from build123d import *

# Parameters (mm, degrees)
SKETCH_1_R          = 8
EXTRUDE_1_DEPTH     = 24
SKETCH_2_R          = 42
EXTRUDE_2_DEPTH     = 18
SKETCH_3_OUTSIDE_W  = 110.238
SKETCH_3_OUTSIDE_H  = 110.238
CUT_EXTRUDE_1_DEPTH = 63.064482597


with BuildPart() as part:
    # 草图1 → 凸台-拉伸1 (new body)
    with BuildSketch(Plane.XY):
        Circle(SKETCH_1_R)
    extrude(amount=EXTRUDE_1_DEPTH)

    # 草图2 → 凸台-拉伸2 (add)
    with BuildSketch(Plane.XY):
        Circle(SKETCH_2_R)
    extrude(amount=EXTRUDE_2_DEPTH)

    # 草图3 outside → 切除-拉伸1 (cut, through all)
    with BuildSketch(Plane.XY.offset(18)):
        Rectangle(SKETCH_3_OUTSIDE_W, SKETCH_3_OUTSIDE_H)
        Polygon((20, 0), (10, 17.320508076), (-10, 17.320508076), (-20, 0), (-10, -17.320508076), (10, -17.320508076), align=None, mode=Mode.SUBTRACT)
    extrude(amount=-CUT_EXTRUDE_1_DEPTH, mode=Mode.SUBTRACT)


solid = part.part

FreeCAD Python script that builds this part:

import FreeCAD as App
import Part
import Sketcher
Q = App.Units.Quantity


def add_polygon(sketch, points):
    """Adds a closed chain of lines whose ends are joined by coincident constraints."""
    first, n = sketch.GeometryCount, len(points)
    for a, b in zip(points, points[1:] + points[:1]):
        sketch.addGeometry(Part.LineSegment(App.Vector(*a, 0), App.Vector(*b, 0)), False)
    for i in range(n):
        sketch.addConstraint(Sketcher.Constraint("Coincident", first + i, 2, first + (i + 1) % n, 1))

doc = App.newDocument("Part")
body = doc.addObject("PartDesign::Body", "Body")

# Sketch on XY plane
sketch1 = body.newObject("Sketcher::SketchObject", "Sketch")
sketch1.AttachmentSupport = (doc.getObject("XY_Plane"), [""])
sketch1.MapMode = "FlatFace"
sketch1.addGeometry(Part.Circle(App.Vector(0, 0, 0), App.Vector(0, 0, 1), 8), False)
sketch1.addConstraint(Sketcher.Constraint("Coincident", 0, 3, -1, 1))
sketch1.addConstraint(Sketcher.Constraint("Diameter", 0, 16.0))
pad1 = body.newObject("PartDesign::Pad", "Pad")
pad1.Profile = sketch1
pad1.Length = 24

# Sketch on XY plane
sketch2 = body.newObject("Sketcher::SketchObject", "Sketch001")
sketch2.AttachmentSupport = (doc.getObject("XY_Plane"), [""])
sketch2.MapMode = "FlatFace"
sketch2.addGeometry(Part.Circle(App.Vector(0, 0, 0), App.Vector(0, 0, 1), 42), False)
sketch2.addConstraint(Sketcher.Constraint("Coincident", 0, 3, -1, 1))
sketch2.addConstraint(Sketcher.Constraint("Diameter", 0, 84.0))
pad2 = body.newObject("PartDesign::Pad", "Pad001")
pad2.Profile = sketch2
pad2.Length = 18

# Sketch on XY plane
sketch3 = body.newObject("Sketcher::SketchObject", "Sketch002")
sketch3.AttachmentSupport = (doc.getObject("XY_Plane"), [""])
sketch3.MapMode = "FlatFace"
sketch3.AttachmentOffset = App.Placement(App.Vector(0, 0, 18), App.Rotation())
add_polygon(sketch3, [(-55, 55), (-55, -55), (55, -55), (55, 55)])  # lines 0-3
add_polygon(sketch3, [(10, 17), (20, 0), (10, -17), (-10, -17), (-20, 0), (-10, 17)])  # lines 4-9
sketch3.addConstraint(Sketcher.Constraint("Vertical", 0))
sketch3.addConstraint(Sketcher.Constraint("Horizontal", 1))
sketch3.addConstraint(Sketcher.Constraint("Vertical", 2))
sketch3.addConstraint(Sketcher.Constraint("Horizontal", 3))
sketch3.addConstraint(Sketcher.Constraint("Horizontal", 6))
sketch3.addConstraint(Sketcher.Constraint("Horizontal", 9))
sketch3.addConstraint(Sketcher.Constraint("Symmetric", 0, 2, 2, 2, -1, 1))
sketch3.addConstraint(Sketcher.Constraint("Symmetric", 4, 2, 7, 2, -1, 1))
sketch3.addConstraint(Sketcher.Constraint("Symmetric", 5, 2, 8, 2, -1, 1))
sketch3.addConstraint(Sketcher.Constraint("PointOnObject", 4, 2, -1))
sketch3.addConstraint(Sketcher.Constraint("Parallel", 4, 7))
sketch3.addConstraint(Sketcher.Constraint("Vertical", 6, 2, 8, 2))
sketch3.addConstraint(Sketcher.Constraint("Equal", 3, 0))
sketch3.addConstraint(Sketcher.Constraint("DistanceX", 6, 2, 6, 1, 20.0))
sketch3.addConstraint(Sketcher.Constraint("Angle", 4, Q("-60 deg")))
sketch3.addConstraint(Sketcher.Constraint("Distance", 4, 20.0))
sketch3.addConstraint(Sketcher.Constraint("DistanceX", 1, 1, 1, 2, 110.238))
pocket1 = body.newObject("PartDesign::Pocket", "Pocket")
pocket1.Profile = sketch3
pocket1.Type = "ThroughAll"

doc.recompute()
